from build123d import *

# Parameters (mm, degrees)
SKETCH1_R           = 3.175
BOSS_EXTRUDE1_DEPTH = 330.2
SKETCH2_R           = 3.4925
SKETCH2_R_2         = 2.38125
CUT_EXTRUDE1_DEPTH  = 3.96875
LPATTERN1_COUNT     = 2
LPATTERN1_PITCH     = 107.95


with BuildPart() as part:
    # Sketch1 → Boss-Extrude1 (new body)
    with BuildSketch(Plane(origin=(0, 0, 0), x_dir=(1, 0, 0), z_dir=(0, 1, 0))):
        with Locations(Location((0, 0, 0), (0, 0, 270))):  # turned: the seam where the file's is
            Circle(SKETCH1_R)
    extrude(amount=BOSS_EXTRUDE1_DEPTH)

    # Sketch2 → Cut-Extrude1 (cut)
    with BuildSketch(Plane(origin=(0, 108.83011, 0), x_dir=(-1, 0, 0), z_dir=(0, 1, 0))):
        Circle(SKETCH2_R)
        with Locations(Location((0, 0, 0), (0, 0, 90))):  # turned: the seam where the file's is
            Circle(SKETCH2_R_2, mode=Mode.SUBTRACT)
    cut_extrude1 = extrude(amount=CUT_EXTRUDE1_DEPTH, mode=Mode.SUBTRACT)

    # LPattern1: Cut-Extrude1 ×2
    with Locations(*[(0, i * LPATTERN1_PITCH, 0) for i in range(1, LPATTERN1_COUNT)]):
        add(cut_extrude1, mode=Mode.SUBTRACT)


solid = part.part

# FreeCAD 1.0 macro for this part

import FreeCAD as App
import Part
import Sketcher

V = App.Vector
Q = App.Units.Quantity

doc = App.newDocument("Part")
body = doc.addObject("PartDesign::Body", "Body")

sketch1 = body.newObject("Sketcher::SketchObject", "Sketch")
sketch1.AttachmentSupport = (doc.getObject("XZ_Plane"), [""])
sketch1.MapMode = "FlatFace"
sketch1.addGeometry(Part.Circle(V(0, 0, 0), V(0, 0, 1), 3.2), False)
sketch1.addConstraint(Sketcher.Constraint("Coincident", 0, 3, -1, 1))
sketch1.addConstraint(Sketcher.Constraint("Diameter", 0, Q("0.25 in")))
pad1 = body.newObject("PartDesign::Pad", "Pad")
pad1.Profile = sketch1
pad1.Length = Q("13 in")
pad1.Reversed = True

sketch2 = body.newObject("Sketcher::SketchObject", "Sketch001")
sketch2.AttachmentSupport = (doc.getObject("XZ_Plane"), [""])
sketch2.MapMode = "FlatFace"
sketch2.AttachmentOffset = App.Placement(V(0, 0, -108.83011), App.Rotation())
sketch2.addGeometry(Part.Circle(V(0, 0, 0), V(0, 0, 1), 3.5), False)
sketch2.addGeometry(Part.Circle(V(0, 0, 0), V(0, 0, 1), 2.4), False)
sketch2.addConstraint(Sketcher.Constraint("Coincident", 0, 3, -1, 1))
sketch2.addConstraint(Sketcher.Constraint("Coincident", 1, 3, -1, 1))
sketch2.addConstraint(Sketcher.Constraint("Diameter", 0, Q("0.275 in")))
sketch2.addConstraint(Sketcher.Constraint("Diameter", 1, Q("0.1875 in")))
pocket1 = body.newObject("PartDesign::Pocket", "Pocket")
pocket1.Profile = sketch2
pocket1.Length = Q("0.15625 in")
doc.recompute()

linearpattern = body.newObject("PartDesign::LinearPattern", "LinearPattern")
linearpattern.Originals = [pocket1]
linearpattern.Direction = (doc.getObject("Y_Axis"), [""])
linearpattern.Mode = "offset"
linearpattern.Offset = Q("4.25 in")
linearpattern.Occurrences = 2
body.Tip = linearpattern

doc.recompute()
